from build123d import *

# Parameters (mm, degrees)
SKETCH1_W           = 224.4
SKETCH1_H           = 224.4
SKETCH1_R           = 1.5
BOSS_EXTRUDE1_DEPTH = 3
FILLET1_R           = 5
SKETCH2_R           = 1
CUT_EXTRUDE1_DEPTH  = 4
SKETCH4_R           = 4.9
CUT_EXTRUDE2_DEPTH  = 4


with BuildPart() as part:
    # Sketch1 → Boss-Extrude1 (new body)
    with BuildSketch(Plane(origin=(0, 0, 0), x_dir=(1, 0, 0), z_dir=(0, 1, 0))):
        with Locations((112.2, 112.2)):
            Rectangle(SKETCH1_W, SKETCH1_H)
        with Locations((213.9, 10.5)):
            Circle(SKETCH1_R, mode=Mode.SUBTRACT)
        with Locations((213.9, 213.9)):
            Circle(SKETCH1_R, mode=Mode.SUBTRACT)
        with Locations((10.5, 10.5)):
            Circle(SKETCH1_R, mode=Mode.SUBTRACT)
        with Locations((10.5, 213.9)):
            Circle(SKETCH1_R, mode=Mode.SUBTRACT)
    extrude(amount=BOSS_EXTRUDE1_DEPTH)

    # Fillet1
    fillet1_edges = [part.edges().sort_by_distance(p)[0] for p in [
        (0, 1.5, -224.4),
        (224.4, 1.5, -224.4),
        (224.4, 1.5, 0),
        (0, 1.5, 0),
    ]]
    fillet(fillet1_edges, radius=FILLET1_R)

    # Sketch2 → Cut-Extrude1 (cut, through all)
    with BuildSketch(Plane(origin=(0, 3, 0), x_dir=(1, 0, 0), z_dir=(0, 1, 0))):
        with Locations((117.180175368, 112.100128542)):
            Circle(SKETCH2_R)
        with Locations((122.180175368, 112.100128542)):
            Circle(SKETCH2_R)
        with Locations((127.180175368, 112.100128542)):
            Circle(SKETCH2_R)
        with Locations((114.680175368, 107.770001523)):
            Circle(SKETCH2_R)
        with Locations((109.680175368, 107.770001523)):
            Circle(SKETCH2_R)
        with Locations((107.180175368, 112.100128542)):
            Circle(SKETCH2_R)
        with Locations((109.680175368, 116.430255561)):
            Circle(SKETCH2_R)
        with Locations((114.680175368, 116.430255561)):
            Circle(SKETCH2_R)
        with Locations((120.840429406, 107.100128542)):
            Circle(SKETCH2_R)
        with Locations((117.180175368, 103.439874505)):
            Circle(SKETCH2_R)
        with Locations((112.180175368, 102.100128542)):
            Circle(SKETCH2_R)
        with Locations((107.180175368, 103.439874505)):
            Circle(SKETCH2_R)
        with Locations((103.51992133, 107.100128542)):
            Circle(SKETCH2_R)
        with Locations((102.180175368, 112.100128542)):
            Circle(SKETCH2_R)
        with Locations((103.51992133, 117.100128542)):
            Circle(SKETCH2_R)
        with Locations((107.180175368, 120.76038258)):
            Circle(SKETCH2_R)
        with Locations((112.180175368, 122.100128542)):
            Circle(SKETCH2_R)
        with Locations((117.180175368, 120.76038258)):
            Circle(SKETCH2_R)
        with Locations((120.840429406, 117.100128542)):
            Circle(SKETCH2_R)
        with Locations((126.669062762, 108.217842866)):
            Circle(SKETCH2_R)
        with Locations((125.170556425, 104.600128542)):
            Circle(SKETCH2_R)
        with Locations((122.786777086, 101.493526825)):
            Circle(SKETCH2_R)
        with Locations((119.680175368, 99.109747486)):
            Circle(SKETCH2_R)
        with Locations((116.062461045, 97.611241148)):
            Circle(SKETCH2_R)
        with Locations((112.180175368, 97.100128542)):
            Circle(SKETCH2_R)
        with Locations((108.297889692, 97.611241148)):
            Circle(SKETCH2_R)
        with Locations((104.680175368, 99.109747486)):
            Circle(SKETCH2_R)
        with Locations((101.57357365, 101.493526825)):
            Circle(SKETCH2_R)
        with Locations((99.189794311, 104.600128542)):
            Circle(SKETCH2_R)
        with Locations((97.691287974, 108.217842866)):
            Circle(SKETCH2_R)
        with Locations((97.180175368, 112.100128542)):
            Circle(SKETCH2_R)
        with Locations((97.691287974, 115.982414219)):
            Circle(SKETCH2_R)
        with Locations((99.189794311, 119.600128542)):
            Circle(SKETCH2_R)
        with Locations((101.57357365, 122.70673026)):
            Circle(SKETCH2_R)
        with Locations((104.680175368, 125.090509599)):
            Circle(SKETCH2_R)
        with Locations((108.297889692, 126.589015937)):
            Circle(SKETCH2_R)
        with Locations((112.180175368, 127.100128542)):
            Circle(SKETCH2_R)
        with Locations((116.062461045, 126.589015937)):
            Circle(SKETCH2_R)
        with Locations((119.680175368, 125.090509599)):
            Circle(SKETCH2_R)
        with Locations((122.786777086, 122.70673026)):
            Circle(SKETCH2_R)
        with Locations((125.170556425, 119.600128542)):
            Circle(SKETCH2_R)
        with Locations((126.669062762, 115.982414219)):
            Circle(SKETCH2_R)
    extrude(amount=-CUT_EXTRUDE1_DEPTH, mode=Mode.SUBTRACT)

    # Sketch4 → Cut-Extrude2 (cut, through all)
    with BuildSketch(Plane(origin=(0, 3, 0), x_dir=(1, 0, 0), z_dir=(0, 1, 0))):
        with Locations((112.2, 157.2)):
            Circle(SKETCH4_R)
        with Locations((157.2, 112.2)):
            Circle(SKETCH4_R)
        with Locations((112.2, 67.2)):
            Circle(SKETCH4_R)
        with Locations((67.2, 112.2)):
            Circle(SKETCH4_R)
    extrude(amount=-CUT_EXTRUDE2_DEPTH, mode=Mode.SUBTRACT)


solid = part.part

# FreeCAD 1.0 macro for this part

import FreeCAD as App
import Part
import Sketcher

V = App.Vector
Q = App.Units.Quantity


def edges_at(feature, points):
    """Names of the edges that pass closest to the given points."""
    edges = feature.Shape.Edges
    near = lambda p: min(range(len(edges)), key=lambda i: edges[i].distToShape(Part.Vertex(*p))[0])
    return sorted({f"Edge{near(p) + 1}" for p in points})

doc = App.newDocument("Part")
body = doc.addObject("PartDesign::Body", "Body")

sketch1 = doc.addObject("Sketcher::SketchObject", "Sketch")
body.addObject(sketch1)
sketch1.AttachmentSupport = (doc.XZ_Plane, [""])
sketch1.MapMode = "FlatFace"
sketch1.addGeometry(Part.LineSegment(V(0, -224.4, 0), V(0, 0, 0)), False)
sketch1.addGeometry(Part.LineSegment(V(0, 0, 0), V(224.4, 0, 0)), False)
sketch1.addGeometry(Part.LineSegment(V(224.4, 0, 0), V(224.4, -224.4, 0)), False)
sketch1.addGeometry(Part.LineSegment(V(224.4, -224.4, 0), V(0, -224.4, 0)), False)
sketch1.addGeometry(Part.Circle(V(10.5, -10.5, 0), V(0, 0, 1), 1.5), False)
sketch1.addGeometry(Part.Circle(V(213.9, -10.5, 0), V(0, 0, 1), 1.5), False)
sketch1.addGeometry(Part.Circle(V(10.5, -213.9, 0), V(0, 0, 1), 1.5), False)
sketch1.addGeometry(Part.Circle(V(213.9, -213.9, 0), V(0, 0, 1), 1.5), False)
sketch1.addConstraint(Sketcher.Constraint("Coincident", 0, 2, 1, 1))
sketch1.addConstraint(Sketcher.Constraint("Coincident", 1, 2, 2, 1))
sketch1.addConstraint(Sketcher.Constraint("Coincident", 2, 2, 3, 1))
sketch1.addConstraint(Sketcher.Constraint("Coincident", 3, 2, 0, 1))
sketch1.addConstraint(Sketcher.Constraint("Vertical", 0))
sketch1.addConstraint(Sketcher.Constraint("Horizontal", 1))
sketch1.addConstraint(Sketcher.Constraint("Vertical", 2))
sketch1.addConstraint(Sketcher.Constraint("Horizontal", 3))
sketch1.addConstraint(Sketcher.Constraint("Coincident", 0, 2, -1, 1))
sketch1.addConstraint(Sketcher.Constraint("Equal", 4, 5))
sketch1.addConstraint(Sketcher.Constraint("Equal", 5, 6))
sketch1.addConstraint(Sketcher.Constraint("Equal", 6, 7))
sketch1.addConstraint(Sketcher.Constraint("Horizontal", 4, 3, 5, 3))
sketch1.addConstraint(Sketcher.Constraint("Horizontal", 6, 3, 7, 3))
sketch1.addConstraint(Sketcher.Constraint("Vertical", 4, 3, 6, 3))
sketch1.addConstraint(Sketcher.Constraint("Vertical", 5, 3, 7, 3))
sketch1.addConstraint(Sketcher.Constraint("Equal", 3, 0))
sketch1.addConstraint(Sketcher.Constraint("Diameter", 4, Q("3 mm")))
sketch1.addConstraint(Sketcher.Constraint("DistanceX", 1, 1, 1, 2, Q("224.4 mm")))
sketch1.addConstraint(Sketcher.Constraint("DistanceX", -1, 1, 4, 3, Q("10.5 mm")))
sketch1.addConstraint(Sketcher.Constraint("DistanceY", 4, 3, -1, 1, Q("10.5 mm")))
sketch1.addConstraint(Sketcher.Constraint("DistanceX", -1, 1, 5, 3, Q("213.9 mm")))
sketch1.addConstraint(Sketcher.Constraint("DistanceY", 6, 3, -1, 1, Q("213.9 mm")))
pad1 = doc.addObject("PartDesign::Pad", "Pad")
body.addObject(pad1)
pad1.Profile = sketch1
pad1.Length = 3
pad1.Reversed = True
doc.recompute()

fillet = doc.addObject("PartDesign::Fillet", "Fillet")
body.addObject(fillet)
fillet.Base = (pad1, edges_at(pad1, [
    (0, 1.5, -224.4),
    (224.4, 1.5, -224.4),
    (224.4, 1.5, 0),
    (0, 1.5, 0),
]))
fillet.Radius = 5

sketch2 = doc.addObject("Sketcher::SketchObject", "Sketch001")
body.addObject(sketch2)
sketch2.AttachmentSupport = (doc.XZ_Plane, [""])
sketch2.MapMode = "FlatFace"
sketch2.AttachmentOffset = App.Placement(V(0, 0, -3), App.Rotation())
sketch2.addGeometry(Part.Circle(V(117.2, -112.1, 0), V(0, 0, 1), 1), False)
sketch2.addGeometry(Part.Circle(V(122.2, -112.1, 0), V(0, 0, 1), 1), False)
sketch2.addGeometry(Part.Circle(V(127.2, -112.1, 0), V(0, 0, 1), 1), False)
sketch2.addGeometry(Part.Circle(V(114.7, -107.8, 0), V(0, 0, 1), 1), False)
sketch2.addGeometry(Part.Circle(V(109.7, -107.8, 0), V(0, 0, 1), 1), False)
sketch2.addGeometry(Part.Circle(V(107.2, -112.1, 0), V(0, 0, 1), 1), False)
sketch2.addGeometry(Part.Circle(V(109.7, -116.4, 0), V(0, 0, 1), 1), False)
sketch2.addGeometry(Part.Circle(V(114.7, -116.4, 0), V(0, 0, 1), 1), False)
sketch2.addGeometry(Part.Circle(V(120.8, -107.1, 0), V(0, 0, 1), 1), False)
sketch2.addGeometry(Part.Circle(V(117.2, -103.4, 0), V(0, 0, 1), 1), False)
sketch2.addGeometry(Part.Circle(V(112.2, -102.1, 0), V(0, 0, 1), 1), False)
sketch2.addGeometry(Part.Circle(V(107.2, -103.4, 0), V(0, 0, 1), 1), False)
sketch2.addGeometry(Part.Circle(V(103.5, -107.1, 0), V(0, 0, 1), 1), False)
sketch2.addGeometry(Part.Circle(V(102.2, -112.1, 0), V(0, 0, 1), 1), False)
sketch2.addGeometry(Part.Circle(V(103.5, -117.1, 0), V(0, 0, 1), 1), False)
sketch2.addGeometry(Part.Circle(V(107.2, -120.8, 0), V(0, 0, 1), 1), False)
sketch2.addGeometry(Part.Circle(V(112.2, -122.1, 0), V(0, 0, 1), 1), False)
sketch2.addGeometry(Part.Circle(V(117.2, -120.8, 0), V(0, 0, 1), 1), False)
sketch2.addGeometry(Part.Circle(V(120.8, -117.1, 0), V(0, 0, 1), 1), False)
sketch2.addGeometry(Part.Circle(V(126.7, -108.2, 0), V(0, 0, 1), 1), False)
sketch2.addGeometry(Part.Circle(V(125.2, -104.6, 0), V(0, 0, 1), 1), False)
sketch2.addGeometry(Part.Circle(V(122.8, -101.5, 0), V(0, 0, 1), 1), False)
sketch2.addGeometry(Part.Circle(V(119.7, -99.1, 0), V(0, 0, 1), 1), False)
sketch2.addGeometry(Part.Circle(V(116.1, -97.6, 0), V(0, 0, 1), 1), False)
sketch2.addGeometry(Part.Circle(V(112.2, -97.1, 0), V(0, 0, 1), 1), False)
sketch2.addGeometry(Part.Circle(V(108.3, -97.6, 0), V(0, 0, 1), 1), False)
sketch2.addGeometry(Part.Circle(V(104.7, -99.1, 0), V(0, 0, 1), 1), False)
sketch2.addGeometry(Part.Circle(V(101.6, -101.5, 0), V(0, 0, 1), 1), False)
sketch2.addGeometry(Part.Circle(V(99.2, -104.6, 0), V(0, 0, 1), 1), False)
sketch2.addGeometry(Part.Circle(V(97.7, -108.2, 0), V(0, 0, 1), 1), False)
sketch2.addGeometry(Part.Circle(V(97.2, -112.1, 0), V(0, 0, 1), 1), False)
sketch2.addGeometry(Part.Circle(V(97.7, -116, 0), V(0, 0, 1), 1), False)
sketch2.addGeometry(Part.Circle(V(99.2, -119.6, 0), V(0, 0, 1), 1), False)
sketch2.addGeometry(Part.Circle(V(101.6, -122.7, 0), V(0, 0, 1), 1), False)
sketch2.addGeometry(Part.Circle(V(104.7, -125.1, 0), V(0, 0, 1), 1), False)
sketch2.addGeometry(Part.Circle(V(108.3, -126.6, 0), V(0, 0, 1), 1), False)
sketch2.addGeometry(Part.Circle(V(112.2, -127.1, 0), V(0, 0, 1), 1), False)
sketch2.addGeometry(Part.Circle(V(116.1, -126.6, 0), V(0, 0, 1), 1), False)
sketch2.addGeometry(Part.Circle(V(119.7, -125.1, 0), V(0, 0, 1), 1), False)
sketch2.addGeometry(Part.Circle(V(122.8, -122.7, 0), V(0, 0, 1), 1), False)
sketch2.addGeometry(Part.Circle(V(125.2, -119.6, 0), V(0, 0, 1), 1), False)
sketch2.addGeometry(Part.Circle(V(126.7, -116, 0), V(0, 0, 1), 1), False)
sketch2.addConstraint(Sketcher.Constraint("Equal", 0, 1))
sketch2.addConstraint(Sketcher.Constraint("Equal", 1, 2))
sketch2.addConstraint(Sketcher.Constraint("Equal", 2, 3))
sketch2.addConstraint(Sketcher.Constraint("Equal", 3, 4))
sketch2.addConstraint(Sketcher.Constraint("Equal", 4, 5))
sketch2.addConstraint(Sketcher.Constraint("Equal", 5, 6))
sketch2.addConstraint(Sketcher.Constraint("Equal", 6, 7))
sketch2.addConstraint(Sketcher.Constraint("Equal", 7, 8))
sketch2.addConstraint(Sketcher.Constraint("Equal", 8, 9))
sketch2.addConstraint(Sketcher.Constraint("Equal", 9, 10))
sketch2.addConstraint(Sketcher.Constraint("Equal", 10, 11))
sketch2.addConstraint(Sketcher.Constraint("Equal", 11, 12))
sketch2.addConstraint(Sketcher.Constraint("Equal", 12, 13))
sketch2.addConstraint(Sketcher.Constraint("Equal", 13, 14))
sketch2.addConstraint(Sketcher.Constraint("Equal", 14, 15))
sketch2.addConstraint(Sketcher.Constraint("Equal", 15, 16))
sketch2.addConstraint(Sketcher.Constraint("Equal", 16, 17))
sketch2.addConstraint(Sketcher.Constraint("Equal", 17, 18))
sketch2.addConstraint(Sketcher.Constraint("Equal", 18, 19))
sketch2.addConstraint(Sketcher.Constraint("Equal", 19, 20))
sketch2.addConstraint(Sketcher.Constraint("Equal", 20, 21))
sketch2.addConstraint(Sketcher.Constraint("Equal", 21, 22))
sketch2.addConstraint(Sketcher.Constraint("Equal", 22, 23))
sketch2.addConstraint(Sketcher.Constraint("Equal", 23, 24))
sketch2.addConstraint(Sketcher.Constraint("Equal", 24, 25))
sketch2.addConstraint(Sketcher.Constraint("Equal", 25, 26))
sketch2.addConstraint(Sketcher.Constraint("Equal", 26, 27))
sketch2.addConstraint(Sketcher.Constraint("Equal", 27, 28))
sketch2.addConstraint(Sketcher.Constraint("Equal", 28, 29))
sketch2.addConstraint(Sketcher.Constraint("Equal", 29, 30))
sketch2.addConstraint(Sketcher.Constraint("Equal", 30, 31))
sketch2.addConstraint(Sketcher.Constraint("Equal", 31, 32))
sketch2.addConstraint(Sketcher.Constraint("Equal", 32, 33))
sketch2.addConstraint(Sketcher.Constraint("Equal", 33, 34))
sketch2.addConstraint(Sketcher.Constraint("Equal", 34, 35))
sketch2.addConstraint(Sketcher.Constraint("Equal", 35, 36))
sketch2.addConstraint(Sketcher.Constraint("Equal", 36, 37))
sketch2.addConstraint(Sketcher.Constraint("Equal", 37, 38))
sketch2.addConstraint(Sketcher.Constraint("Equal", 38, 39))
sketch2.addConstraint(Sketcher.Constraint("Equal", 39, 40))
sketch2.addConstraint(Sketcher.Constraint("Equal", 40, 41))
sketch2.addConstraint(Sketcher.Constraint("Horizontal", 0, 3, 1, 3))
sketch2.addConstraint(Sketcher.Constraint("Horizontal", 1, 3, 2, 3))
sketch2.addConstraint(Sketcher.Constraint("Horizontal", 3, 3, 4, 3))
sketch2.addConstraint(Sketcher.Constraint("Horizontal", 2, 3, 5, 3))
sketch2.addConstraint(Sketcher.Constraint("Horizontal", 6, 3, 7, 3))
sketch2.addConstraint(Sketcher.Constraint("Horizontal", 9, 3, 11, 3))
sketch2.addConstraint(Sketcher.Constraint("Horizontal", 8, 3, 12, 3))
sketch2.addConstraint(Sketcher.Constraint("Horizontal", 5, 3, 13, 3))
sketch2.addConstraint(Sketcher.Constraint("Horizontal", 15, 3, 17, 3))
sketch2.addConstraint(Sketcher.Constraint("Horizontal", 14, 3, 18, 3))
sketch2.addConstraint(Sketcher.Constraint("Horizontal", 23, 3, 25, 3))
sketch2.addConstraint(Sketcher.Constraint("Horizontal", 22, 3, 26, 3))
sketch2.addConstraint(Sketcher.Constraint("Horizontal", 21, 3, 27, 3))
sketch2.addConstraint(Sketcher.Constraint("Horizontal", 20, 3, 28, 3))
sketch2.addConstraint(Sketcher.Constraint("Horizontal", 19, 3, 29, 3))
sketch2.addConstraint(Sketcher.Constraint("Horizontal", 13, 3, 30, 3))
sketch2.addConstraint(Sketcher.Constraint("Horizontal", 35, 3, 37, 3))
sketch2.addConstraint(Sketcher.Constraint("Horizontal", 34, 3, 38, 3))
sketch2.addConstraint(Sketcher.Constraint("Horizontal", 33, 3, 39, 3))
sketch2.addConstraint(Sketcher.Constraint("Horizontal", 32, 3, 40, 3))
sketch2.addConstraint(Sketcher.Constraint("Horizontal", 31, 3, 41, 3))
sketch2.addConstraint(Sketcher.Constraint("Vertical", 4, 3, 6, 3))
sketch2.addConstraint(Sketcher.Constraint("Vertical", 3, 3, 7, 3))
sketch2.addConstraint(Sketcher.Constraint("Vertical", 0, 3, 9, 3))
sketch2.addConstraint(Sketcher.Constraint("Vertical", 5, 3, 11, 3))
sketch2.addConstraint(Sketcher.Constraint("Vertical", 12, 3, 14, 3))
sketch2.addConstraint(Sketcher.Constraint("Vertical", 11, 3, 15, 3))
sketch2.addConstraint(Sketcher.Constraint("Vertical", 10, 3, 16, 3))
sketch2.addConstraint(Sketcher.Constraint("Vertical", 9, 3, 17, 3))
sketch2.addConstraint(Sketcher.Constraint("Vertical", 8, 3, 18, 3))
sketch2.addConstraint(Sketcher.Constraint("Vertical", 16, 3, 24, 3))
sketch2.addConstraint(Sketcher.Constraint("Vertical", 29, 3, 31, 3))
sketch2.addConstraint(Sketcher.Constraint("Vertical", 28, 3, 32, 3))
sketch2.addConstraint(Sketcher.Constraint("Vertical", 27, 3, 33, 3))
sketch2.addConstraint(Sketcher.Constraint("Vertical", 26, 3, 34, 3))
sketch2.addConstraint(Sketcher.Constraint("Vertical", 25, 3, 35, 3))
sketch2.addConstraint(Sketcher.Constraint("Vertical", 24, 3, 36, 3))
sketch2.addConstraint(Sketcher.Constraint("Vertical", 23, 3, 37, 3))
sketch2.addConstraint(Sketcher.Constraint("Vertical", 22, 3, 38, 3))
sketch2.addConstraint(Sketcher.Constraint("Vertical", 21, 3, 39, 3))
sketch2.addConstraint(Sketcher.Constraint("Vertical", 20, 3, 40, 3))
sketch2.addConstraint(Sketcher.Constraint("Vertical", 19, 3, 41, 3))
sketch2.addConstraint(Sketcher.Constraint("Diameter", 0, Q("2 mm")))
sketch2.addConstraint(Sketcher.Constraint("DistanceX", 0, 3, 1, 3, Q("5 mm")))
sketch2.addConstraint(Sketcher.Constraint("DistanceX", 1, 3, 2, 3, Q("5 mm")))
sketch2.addConstraint(Sketcher.Constraint("DistanceX", 4, 3, 3, 3, Q("5 mm")))
sketch2.addConstraint(Sketcher.Constraint("DistanceX", 5, 3, 0, 3, Q("10 mm")))
sketch2.addConstraint(Sketcher.Constraint("DistanceY", 1, 3, 8, 3, Q("5 mm")))
sketch2.addConstraint(Sketcher.Constraint("DistanceX", 10, 3, 9, 3, Q("5 mm")))
sketch2.addConstraint(Sketcher.Constraint("DistanceY", 8, 3, 10, 3, Q("5 mm")))
sketch2.addConstraint(Sketcher.Constraint("DistanceX", 13, 3, 5, 3, Q("5 mm")))
sketch2.addConstraint(Sketcher.Constraint("DistanceY", 14, 3, 13, 3, Q("5 mm")))
sketch2.addConstraint(Sketcher.Constraint("DistanceY", 16, 3, 14, 3, Q("5 mm")))
sketch2.addConstraint(Sketcher.Constraint("DistanceY", 10, 3, 24, 3, Q("5 mm")))
sketch2.addConstraint(Sketcher.Constraint("DistanceX", 30, 3, 13, 3, Q("5 mm")))
sketch2.addConstraint(Sketcher.Constraint("DistanceY", 36, 3, 16, 3, Q("5 mm")))
sketch2.addConstraint(Sketcher.Constraint("DistanceX", 3, 3, 0, 3, Q("2.5 mm")))
sketch2.addConstraint(Sketcher.Constraint("DistanceY", 8, 3, 20, 3, Q("2.5 mm")))
sketch2.addConstraint(Sketcher.Constraint("DistanceX", 9, 3, 22, 3, Q("2.5 mm")))
sketch2.addConstraint(Sketcher.Constraint("DistanceX", 26, 3, 11, 3, Q("2.5 mm")))
sketch2.addConstraint(Sketcher.Constraint("DistanceY", 32, 3, 14, 3, Q("2.5 mm")))
sketch2.addConstraint(Sketcher.Constraint("DistanceY", 3, 3, -1, 1, Q("107.770002 mm")))
sketch2.addConstraint(Sketcher.Constraint("DistanceY", 20, 3, 21, 3, Q("3.106602 mm")))
sketch2.addConstraint(Sketcher.Constraint("DistanceX", 9, 3, 21, 3, Q("5.606602 mm")))
sketch2.addConstraint(Sketcher.Constraint("DistanceX", 27, 3, 26, 3, Q("3.106602 mm")))
sketch2.addConstraint(Sketcher.Constraint("DistanceY", 33, 3, 32, 3, Q("3.106602 mm")))
sketch2.addConstraint(Sketcher.Constraint("DistanceY", 0, 3, -1, 1, Q("112.100129 mm")))
sketch2.addConstraint(Sketcher.Constraint("DistanceX", -1, 1, 8, 3, Q("120.840429 mm")))
sketch2.addConstraint(Sketcher.Constraint("DistanceX", -1, 1, 12, 3, Q("103.519921 mm")))
sketch2.addConstraint(Sketcher.Constraint("DistanceX", -1, 1, 23, 3, Q("116.062461 mm")))
sketch2.addConstraint(Sketcher.Constraint("DistanceY", 23, 3, -1, 1, Q("97.611241 mm")))
sketch2.addConstraint(Sketcher.Constraint("DistanceX", -1, 1, 25, 3, Q("108.29789 mm")))
sketch2.addConstraint(Sketcher.Constraint("DistanceY", 34, 3, -1, 1, Q("125.09051 mm")))
sketch2.addConstraint(Sketcher.Constraint("DistanceX", 20, 3, 2, 3, Q("2.009619 mm")))
sketch2.addConstraint(Sketcher.Constraint("DistanceY", 21, 3, 22, 3, Q("2.383779 mm")))
sketch2.addConstraint(Sketcher.Constraint("DistanceX", 28, 3, 27, 3, Q("2.383779 mm")))
sketch2.addConstraint(Sketcher.Constraint("DistanceY", 31, 3, 29, 3, Q("7.764571 mm")))
sketch2.addConstraint(Sketcher.Constraint("DistanceY", 35, 3, 6, 3, Q("10.15876 mm")))
sketch2.addConstraint(Sketcher.Constraint("DistanceX", -1, 1, 0, 3, Q("117.180175 mm")))
sketch2.addConstraint(Sketcher.Constraint("DistanceY", 6, 3, -1, 1, Q("116.430256 mm")))
sketch2.addConstraint(Sketcher.Constraint("DistanceY", 9, 3, -1, 1, Q("103.439875 mm")))
sketch2.addConstraint(Sketcher.Constraint("DistanceY", 15, 3, -1, 1, Q("120.760383 mm")))
sketch2.addConstraint(Sketcher.Constraint("DistanceX", -1, 1, 19, 3, Q("126.669063 mm")))
sketch2.addConstraint(Sketcher.Constraint("DistanceY", 19, 3, -1, 1, Q("108.217843 mm")))
sketch2.addConstraint(Sketcher.Constraint("DistanceX", -1, 1, 29, 3, Q("97.691288 mm")))
pocket1 = doc.addObject("PartDesign::Pocket", "Pocket")
body.addObject(pocket1)
pocket1.Profile = sketch2
pocket1.Type = "ThroughAll"
pocket1.Reversed = True

sketch3 = doc.addObject("Sketcher::SketchObject", "Sketch002")
body.addObject(sketch3)
sketch3.AttachmentSupport = (doc.XZ_Plane, [""])
sketch3.MapMode = "FlatFace"
sketch3.AttachmentOffset = App.Placement(V(0, 0, -3), App.Rotation())
sketch3.addGeometry(Part.Circle(V(112.2, -157.2, 0), V(0, 0, 1), 4.9), False)
sketch3.addGeometry(Part.Circle(V(157.2, -112.2, 0), V(0, 0, 1), 4.9), False)
sketch3.addGeometry(Part.Circle(V(112.2, -67.2, 0), V(0, 0, 1), 4.9), False)
sketch3.addGeometry(Part.Circle(V(67.2, -112.2, 0), V(0, 0, 1), 4.9), False)
sketch3.addConstraint(Sketcher.Constraint("Equal", 0, 1))
sketch3.addConstraint(Sketcher.Constraint("Equal", 1, 2))
sketch3.addConstraint(Sketcher.Constraint("Equal", 2, 3))
sketch3.addConstraint(Sketcher.Constraint("Horizontal", 1, 3, 3, 3))
sketch3.addConstraint(Sketcher.Constraint("Vertical", 0, 3, 2, 3))
sketch3.addConstraint(Sketcher.Constraint("Diameter", 0, Q("9.8 mm")))
sketch3.addConstraint(Sketcher.Constraint("DistanceX", 0, 3, 1, 3, Q("45 mm")))
sketch3.addConstraint(Sketcher.Constraint("DistanceY", 0, 3, 1, 3, Q("45 mm")))
sketch3.addConstraint(Sketcher.Constraint("DistanceY", 1, 3, 2, 3, Q("45 mm")))
sketch3.addConstraint(Sketcher.Constraint("DistanceX", 3, 3, 0, 3, Q("45 mm")))
sketch3.addConstraint(Sketcher.Constraint("DistanceX", -1, 1, 0, 3, Q("112.2 mm")))
sketch3.addConstraint(Sketcher.Constraint("DistanceY", 0, 3, -1, 1, Q("157.2 mm")))
pocket2 = doc.addObject("PartDesign::Pocket", "Pocket001")
body.addObject(pocket2)
pocket2.Profile = sketch3
pocket2.Type = "ThroughAll"
pocket2.Reversed = True

doc.recompute()
